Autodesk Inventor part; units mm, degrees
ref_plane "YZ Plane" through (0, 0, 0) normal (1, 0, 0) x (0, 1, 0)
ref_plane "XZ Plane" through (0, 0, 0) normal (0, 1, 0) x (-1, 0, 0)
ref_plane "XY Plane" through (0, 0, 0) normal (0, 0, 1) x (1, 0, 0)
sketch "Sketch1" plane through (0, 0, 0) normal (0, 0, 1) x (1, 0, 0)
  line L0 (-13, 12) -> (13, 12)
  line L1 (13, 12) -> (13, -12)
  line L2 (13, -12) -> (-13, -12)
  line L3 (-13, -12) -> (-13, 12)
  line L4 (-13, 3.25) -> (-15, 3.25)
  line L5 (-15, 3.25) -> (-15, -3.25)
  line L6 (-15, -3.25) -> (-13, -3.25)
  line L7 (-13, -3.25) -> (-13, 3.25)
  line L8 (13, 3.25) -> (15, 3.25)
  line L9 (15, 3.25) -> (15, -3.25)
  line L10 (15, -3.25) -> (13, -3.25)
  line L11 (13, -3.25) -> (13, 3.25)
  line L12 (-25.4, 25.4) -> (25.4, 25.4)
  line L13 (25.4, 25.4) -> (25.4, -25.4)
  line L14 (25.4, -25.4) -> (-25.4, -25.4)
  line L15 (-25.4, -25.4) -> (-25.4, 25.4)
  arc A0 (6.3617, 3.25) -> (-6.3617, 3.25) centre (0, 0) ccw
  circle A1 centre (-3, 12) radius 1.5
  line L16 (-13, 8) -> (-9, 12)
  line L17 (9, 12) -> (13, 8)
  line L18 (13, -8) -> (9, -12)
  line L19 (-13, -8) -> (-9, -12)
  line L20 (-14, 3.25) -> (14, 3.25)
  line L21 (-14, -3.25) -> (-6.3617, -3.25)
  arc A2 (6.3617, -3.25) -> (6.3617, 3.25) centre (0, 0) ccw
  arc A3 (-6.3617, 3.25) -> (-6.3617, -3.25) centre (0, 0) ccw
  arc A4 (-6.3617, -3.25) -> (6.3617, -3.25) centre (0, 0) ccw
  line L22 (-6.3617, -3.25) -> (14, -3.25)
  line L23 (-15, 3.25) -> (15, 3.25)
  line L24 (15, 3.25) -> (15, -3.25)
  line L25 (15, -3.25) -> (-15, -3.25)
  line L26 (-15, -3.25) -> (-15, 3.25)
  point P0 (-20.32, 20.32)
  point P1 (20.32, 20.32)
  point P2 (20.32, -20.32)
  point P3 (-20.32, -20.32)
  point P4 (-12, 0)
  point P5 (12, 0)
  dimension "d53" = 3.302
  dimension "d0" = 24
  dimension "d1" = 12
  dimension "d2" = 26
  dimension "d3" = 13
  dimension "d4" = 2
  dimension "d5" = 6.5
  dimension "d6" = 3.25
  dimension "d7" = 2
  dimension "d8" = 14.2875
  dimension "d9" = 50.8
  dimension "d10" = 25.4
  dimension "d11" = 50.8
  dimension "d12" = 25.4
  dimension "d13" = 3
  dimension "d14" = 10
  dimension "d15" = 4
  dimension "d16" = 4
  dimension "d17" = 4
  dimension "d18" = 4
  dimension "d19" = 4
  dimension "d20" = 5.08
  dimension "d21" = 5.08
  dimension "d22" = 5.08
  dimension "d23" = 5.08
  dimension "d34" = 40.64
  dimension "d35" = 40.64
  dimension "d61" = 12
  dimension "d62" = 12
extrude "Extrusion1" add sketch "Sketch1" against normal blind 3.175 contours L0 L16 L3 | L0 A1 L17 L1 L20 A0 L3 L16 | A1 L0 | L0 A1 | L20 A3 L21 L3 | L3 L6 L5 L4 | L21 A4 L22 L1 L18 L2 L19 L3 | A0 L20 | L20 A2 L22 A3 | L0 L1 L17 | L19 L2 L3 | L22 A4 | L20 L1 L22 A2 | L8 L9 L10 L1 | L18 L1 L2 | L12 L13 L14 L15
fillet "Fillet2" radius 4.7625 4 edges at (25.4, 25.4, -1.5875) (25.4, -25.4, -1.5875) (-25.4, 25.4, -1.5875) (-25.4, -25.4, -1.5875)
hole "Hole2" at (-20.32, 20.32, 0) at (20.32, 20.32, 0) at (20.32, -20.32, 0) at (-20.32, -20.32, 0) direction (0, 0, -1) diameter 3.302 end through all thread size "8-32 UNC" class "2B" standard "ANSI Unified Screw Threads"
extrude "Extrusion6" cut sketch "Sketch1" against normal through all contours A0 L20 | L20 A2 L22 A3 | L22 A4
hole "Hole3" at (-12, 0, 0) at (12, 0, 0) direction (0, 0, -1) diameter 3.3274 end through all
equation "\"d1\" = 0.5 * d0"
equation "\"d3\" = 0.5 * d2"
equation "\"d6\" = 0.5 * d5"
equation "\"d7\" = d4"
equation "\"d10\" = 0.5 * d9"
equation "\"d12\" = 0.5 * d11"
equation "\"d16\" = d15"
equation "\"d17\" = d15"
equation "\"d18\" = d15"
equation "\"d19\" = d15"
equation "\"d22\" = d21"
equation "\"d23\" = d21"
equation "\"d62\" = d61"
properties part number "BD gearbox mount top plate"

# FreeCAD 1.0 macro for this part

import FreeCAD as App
import Part
import Sketcher

V = App.Vector
Q = App.Units.Quantity


def edges_at(feature, points):
    """Names of the edges that pass closest to the given points."""
    edges = feature.Shape.Edges
    near = lambda p: min(range(len(edges)), key=lambda i: edges[i].distToShape(Part.Vertex(*p))[0])
    return sorted({f"Edge{near(p) + 1}" for p in points})


def add_polygon(sketch, points):
    """Adds a closed chain of lines whose ends are joined by coincident constraints."""
    first, n = sketch.GeometryCount, len(points)
    for a, b in zip(points, points[1:] + points[:1]):
        sketch.addGeometry(Part.LineSegment(App.Vector(*a, 0), App.Vector(*b, 0)), False)
    for i in range(n):
        sketch.addConstraint(Sketcher.Constraint("Coincident", first + i, 2, first + (i + 1) % n, 1))

doc = App.newDocument("Part")
body = doc.addObject("PartDesign::Body", "Body")

sketch1 = body.newObject("Sketcher::SketchObject", "Sketch")
sketch1.AttachmentSupport = (doc.getObject("XY_Plane"), [""])
sketch1.MapMode = "FlatFace"
add_polygon(sketch1, [(25, 25), (-25, 25), (-25, -25), (25, -25)])
sketch1.addConstraint(Sketcher.Constraint("Horizontal", 0))
sketch1.addConstraint(Sketcher.Constraint("Vertical", 1))
sketch1.addConstraint(Sketcher.Constraint("Horizontal", 2))
sketch1.addConstraint(Sketcher.Constraint("Vertical", 3))
sketch1.addConstraint(Sketcher.Constraint("Symmetric", 0, 2, 2, 2, -1, 1))
sketch1.addConstraint(Sketcher.Constraint("Equal", 2, 1))
sketch1.addConstraint(Sketcher.Constraint("DistanceX", 0, 2, 0, 1, Q("2 in")))
pad1 = body.newObject("PartDesign::Pad", "Pad")
pad1.Profile = sketch1
pad1.Length = Q("0.125 in")
pad1.Reversed = True
doc.recompute()

fillet = body.newObject("PartDesign::Fillet", "Fillet")
fillet.Base = (pad1, edges_at(pad1, [
    (25.4, 25.4, -1.587),
    (25.4, -25.4, -1.587),
    (-25.4, 25.4, -1.587),
    (-25.4, -25.4, -1.587),
]))
fillet.Radius = Q("0.1875 in")

sketch2 = body.newObject("Sketcher::SketchObject", "Sketch001")
sketch2.AttachmentSupport = (doc.getObject("XY_Plane"), [""])
sketch2.MapMode = "FlatFace"
sketch2.addGeometry(Part.Circle(V(-20.3, 20.3, 0), V(0, 0, 1), 1.7), False)
sketch2.addGeometry(Part.Circle(V(20.3, 20.3, 0), V(0, 0, 1), 1.7), False)
sketch2.addGeometry(Part.Circle(V(20.3, -20.3, 0), V(0, 0, 1), 1.7), False)
sketch2.addGeometry(Part.Circle(V(-20.3, -20.3, 0), V(0, 0, 1), 1.7), False)
sketch2.addConstraint(Sketcher.Constraint("Equal", 0, 1))
sketch2.addConstraint(Sketcher.Constraint("Equal", 1, 2))
sketch2.addConstraint(Sketcher.Constraint("Equal", 2, 3))
sketch2.addConstraint(Sketcher.Constraint("Symmetric", 0, 3, 2, 3, -1, 1))
sketch2.addConstraint(Sketcher.Constraint("Symmetric", 1, 3, 3, 3, -1, 1))
sketch2.addConstraint(Sketcher.Constraint("Symmetric", 0, 3, 1, 3, -2))
sketch2.addConstraint(Sketcher.Constraint("Diameter", 0, Q("0.13 in")))
sketch2.addConstraint(Sketcher.Constraint("DistanceX", 0, 3, -1, 1, Q("0.8 in")))
sketch2.addConstraint(Sketcher.Constraint("DistanceY", -1, 1, 0, 3, Q("0.8 in")))
doc.recompute()
hole = body.newObject("PartDesign::Hole", "Hole")
hole.Profile = sketch2
hole.ThreadType = "None"
hole.Diameter = Q("0.13 in")
hole.DepthType = "ThroughAll"

sketch3 = body.newObject("Sketcher::SketchObject", "Sketch002")
sketch3.AttachmentSupport = (doc.getObject("XY_Plane"), [""])
sketch3.MapMode = "FlatFace"
sketch3.addGeometry(Part.Circle(V(0, 0, 0), V(0, 0, 1), 7), False)
sketch3.addConstraint(Sketcher.Constraint("Coincident", 0, 3, -1, 1))
sketch3.addConstraint(Sketcher.Constraint("Diameter", 0, Q("0.5625 in")))
pocket1 = body.newObject("PartDesign::Pocket", "Pocket")
pocket1.Profile = sketch3
pocket1.Type = "ThroughAll"

sketch4 = body.newObject("Sketcher::SketchObject", "Sketch003")
sketch4.AttachmentSupport = (doc.getObject("XY_Plane"), [""])
sketch4.MapMode = "FlatFace"
sketch4.addGeometry(Part.Circle(V(-12, 0, 0), V(0, 0, 1), 1.7), False)
sketch4.addGeometry(Part.Circle(V(12, 0, 0), V(0, 0, 1), 1.7), False)
sketch4.addConstraint(Sketcher.Constraint("Equal", 0, 1))
sketch4.addConstraint(Sketcher.Constraint("Symmetric", 0, 3, 1, 3, -1, 1))
sketch4.addConstraint(Sketcher.Constraint("PointOnObject", 0, 3, -1))
sketch4.addConstraint(Sketcher.Constraint("Diameter", 0, Q("0.131 in")))
sketch4.addConstraint(Sketcher.Constraint("DistanceX", 0, 3, -1, 1, 12.0))
doc.recompute()
hole2 = body.newObject("PartDesign::Hole", "Hole001")
hole2.Profile = sketch4
hole2.ThreadType = "None"
hole2.Diameter = Q("0.131 in")
hole2.DepthType = "ThroughAll"

doc.recompute()
